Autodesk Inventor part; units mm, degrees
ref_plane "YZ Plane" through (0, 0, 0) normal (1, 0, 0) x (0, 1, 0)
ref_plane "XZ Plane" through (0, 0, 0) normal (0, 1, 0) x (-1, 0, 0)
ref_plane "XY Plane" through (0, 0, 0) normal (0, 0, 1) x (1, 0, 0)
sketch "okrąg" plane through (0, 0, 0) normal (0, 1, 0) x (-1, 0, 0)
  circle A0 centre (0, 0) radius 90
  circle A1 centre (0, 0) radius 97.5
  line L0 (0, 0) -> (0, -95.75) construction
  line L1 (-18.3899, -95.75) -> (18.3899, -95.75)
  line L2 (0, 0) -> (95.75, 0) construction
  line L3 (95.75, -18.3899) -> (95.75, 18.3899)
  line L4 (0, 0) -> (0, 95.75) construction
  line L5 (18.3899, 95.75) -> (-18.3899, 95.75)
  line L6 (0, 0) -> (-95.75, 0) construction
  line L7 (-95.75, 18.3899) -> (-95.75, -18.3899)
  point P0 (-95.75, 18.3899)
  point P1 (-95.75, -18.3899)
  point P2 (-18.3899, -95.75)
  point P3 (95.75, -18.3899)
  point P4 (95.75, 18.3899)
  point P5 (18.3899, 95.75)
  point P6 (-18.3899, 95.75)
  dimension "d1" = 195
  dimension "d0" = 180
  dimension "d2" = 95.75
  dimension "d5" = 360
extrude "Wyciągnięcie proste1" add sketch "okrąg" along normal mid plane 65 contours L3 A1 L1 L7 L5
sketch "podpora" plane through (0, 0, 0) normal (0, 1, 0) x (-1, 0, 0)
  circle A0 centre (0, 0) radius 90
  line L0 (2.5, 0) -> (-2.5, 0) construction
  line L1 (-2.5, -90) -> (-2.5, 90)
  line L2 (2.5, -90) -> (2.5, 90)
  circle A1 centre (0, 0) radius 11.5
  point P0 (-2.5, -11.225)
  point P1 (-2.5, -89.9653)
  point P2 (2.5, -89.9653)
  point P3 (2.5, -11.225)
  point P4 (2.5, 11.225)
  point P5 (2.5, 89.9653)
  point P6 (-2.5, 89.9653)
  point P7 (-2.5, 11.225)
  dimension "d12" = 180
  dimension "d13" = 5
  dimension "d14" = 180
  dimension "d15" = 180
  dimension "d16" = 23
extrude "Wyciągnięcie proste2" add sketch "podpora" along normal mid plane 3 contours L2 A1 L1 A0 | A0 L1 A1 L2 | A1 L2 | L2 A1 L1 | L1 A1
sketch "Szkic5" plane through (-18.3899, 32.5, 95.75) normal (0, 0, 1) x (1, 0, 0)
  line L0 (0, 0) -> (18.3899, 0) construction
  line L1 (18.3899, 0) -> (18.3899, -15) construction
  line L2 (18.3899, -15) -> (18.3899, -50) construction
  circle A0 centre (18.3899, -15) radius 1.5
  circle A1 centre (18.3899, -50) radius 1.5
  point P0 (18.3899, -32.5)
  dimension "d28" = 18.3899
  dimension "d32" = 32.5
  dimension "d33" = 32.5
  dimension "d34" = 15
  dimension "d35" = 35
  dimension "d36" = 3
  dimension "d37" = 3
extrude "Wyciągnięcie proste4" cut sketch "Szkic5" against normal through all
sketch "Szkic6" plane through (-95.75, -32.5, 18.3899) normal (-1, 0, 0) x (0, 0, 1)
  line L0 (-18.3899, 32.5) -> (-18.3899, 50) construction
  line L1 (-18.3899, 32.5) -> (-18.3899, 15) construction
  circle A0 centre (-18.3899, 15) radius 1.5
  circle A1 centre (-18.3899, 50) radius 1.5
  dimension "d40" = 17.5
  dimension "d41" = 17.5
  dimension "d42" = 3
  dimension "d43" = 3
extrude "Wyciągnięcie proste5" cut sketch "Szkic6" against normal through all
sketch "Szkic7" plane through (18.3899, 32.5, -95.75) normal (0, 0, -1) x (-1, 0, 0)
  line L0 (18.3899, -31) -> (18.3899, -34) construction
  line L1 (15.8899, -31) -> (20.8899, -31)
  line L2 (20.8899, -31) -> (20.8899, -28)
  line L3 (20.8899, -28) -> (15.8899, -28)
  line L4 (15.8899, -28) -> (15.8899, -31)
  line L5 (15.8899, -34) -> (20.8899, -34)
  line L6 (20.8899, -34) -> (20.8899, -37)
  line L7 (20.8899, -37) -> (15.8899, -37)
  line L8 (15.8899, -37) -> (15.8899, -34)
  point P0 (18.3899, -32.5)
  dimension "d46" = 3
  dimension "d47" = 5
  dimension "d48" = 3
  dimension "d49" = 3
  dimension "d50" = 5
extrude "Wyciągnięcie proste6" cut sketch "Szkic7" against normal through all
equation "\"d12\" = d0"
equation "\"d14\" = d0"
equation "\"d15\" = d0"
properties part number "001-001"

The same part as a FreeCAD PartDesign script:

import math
import FreeCAD as App
import Part
import Sketcher
Q = App.Units.Quantity

doc = App.newDocument("Part")
params = doc.addObject("Spreadsheet::Sheet", "Params")
for row, (alias, value) in enumerate([
    ("sketch1_diameter", "180 mm"),
    ("sketch1_radius", "97.5 mm"),
    ("pad1_length", "65 mm"),
    ("sketch2_radius", "90 mm"),
    ("sketch2_radius2", "11.5 mm"),
    ("pad2_length", "3 mm"),
    ("sketch3_diameter", "3 mm"),
    ("sketch4_diameter", "3 mm"),
    ("sketch5_width", "5 mm"),
    ("sketch5_height", "3 mm"),
], start=1):
    params.set(f"A{row}", alias)
    params.set(f"B{row}", "=" + value)
    params.setAlias(f"B{row}", alias)

body = doc.addObject("PartDesign::Body", "Body")

sketch1 = body.newObject("Sketcher::SketchObject", "Sketch")
sketch1.AttachmentSupport = (doc.getObject("XZ_Plane"), [""])
sketch1.MapMode = "FlatFace"
sketch1.addGeometry([
    Part.LineSegment(App.Vector(-95.75, -18.3899, 0), App.Vector(-95.75, 18.3899, 0)),
    Part.ArcOfCircle(Part.Circle(App.Vector(0, 0, 0), App.Vector(0, 0, 1), 97.5), math.radians(100.87193), math.radians(169.12807)),
    Part.LineSegment(App.Vector(-18.3899, 95.75, 0), App.Vector(18.3899, 95.75, 0)),
    Part.ArcOfCircle(Part.Circle(App.Vector(0, 0, 0), App.Vector(0, 0, 1), 97.5), math.radians(10.87193), math.radians(79.12807)),
    Part.LineSegment(App.Vector(95.75, 18.3899, 0), App.Vector(95.75, -18.3899, 0)),
    Part.ArcOfCircle(Part.Circle(App.Vector(0, 0, 0), App.Vector(0, 0, 1), 97.5), math.radians(-79.12807), math.radians(-10.87193)),
    Part.LineSegment(App.Vector(18.3899, -95.75, 0), App.Vector(-18.3899, -95.75, 0)),
    Part.ArcOfCircle(Part.Circle(App.Vector(0, 0, 0), App.Vector(0, 0, 1), 97.5), math.radians(-169.12807), math.radians(-100.87193)),
    Part.Circle(App.Vector(0, 0, 0), App.Vector(0, 0, 1), 90),
], False)
sketch1.addConstraint([
    Sketcher.Constraint("Coincident", 0, 2, 1, 2),
    Sketcher.Constraint("Coincident", 1, 1, 2, 1),
    Sketcher.Constraint("Coincident", 2, 2, 3, 2),
    Sketcher.Constraint("Coincident", 3, 1, 4, 1),
    Sketcher.Constraint("Coincident", 4, 2, 5, 2),
    Sketcher.Constraint("Coincident", 5, 1, 6, 1),
    Sketcher.Constraint("Coincident", 6, 2, 7, 2),
    Sketcher.Constraint("Coincident", 7, 1, 0, 1),
    Sketcher.Constraint("Vertical", 0),
    Sketcher.Constraint("Horizontal", 2),
    Sketcher.Constraint("Vertical", 4),
    Sketcher.Constraint("Horizontal", 6),
    Sketcher.Constraint("Coincident", 1, 3, -1, 1),
    Sketcher.Constraint("Coincident", 3, 3, -1, 1),
    Sketcher.Constraint("Coincident", 5, 3, -1, 1),
    Sketcher.Constraint("Coincident", 7, 3, -1, 1),
    Sketcher.Constraint("Coincident", 8, 3, -1, 1),
    Sketcher.Constraint("Equal", 1, 3),
    Sketcher.Constraint("Equal", 3, 5),
    Sketcher.Constraint("Equal", 5, 7),
    Sketcher.Constraint("Horizontal", 0, 2, 3, 1),
    Sketcher.Constraint("Vertical", 2, 2, 5, 1),
    Sketcher.Constraint("Equal", 6, 0),
    Sketcher.Constraint("Diameter", 8, Q("180 mm")),
    Sketcher.Constraint("Radius", 1, Q("97.5 mm")),
    Sketcher.Constraint("DistanceX", 0, 2, -1, 1, Q("95.75 mm")),
])
sketch1.setExpression("Constraints[23]", "Params.sketch1_diameter")
sketch1.setExpression("Constraints[24]", "Params.sketch1_radius")
pad1 = body.newObject("PartDesign::Pad", "Pad")
pad1.Profile = sketch1
pad1.setExpression("Length", "Params.pad1_length")
pad1.Midplane = True

sketch2 = body.newObject("Sketcher::SketchObject", "Sketch001")
sketch2.AttachmentSupport = (doc.getObject("XZ_Plane"), [""])
sketch2.MapMode = "FlatFace"
sketch2.addGeometry([
    Part.LineSegment(App.Vector(-2.5, 11.224972, 0), App.Vector(-2.5, 89.965271, 0)),
    Part.ArcOfCircle(Part.Circle(App.Vector(0, 0, 0), App.Vector(0, 0, 1), 90), math.radians(88.408246), math.radians(91.591754)),
    Part.LineSegment(App.Vector(2.5, 89.965271, 0), App.Vector(2.5, 11.224972, 0)),
    Part.ArcOfCircle(Part.Circle(App.Vector(0, 0, 0), App.Vector(0, 0, 1), 11.5), math.radians(-77.444142), math.radians(77.444142)),
    Part.LineSegment(App.Vector(2.5, -11.224972, 0), App.Vector(2.5, -89.965271, 0)),
    Part.ArcOfCircle(Part.Circle(App.Vector(0, 0, 0), App.Vector(0, 0, 1), 90), math.radians(-91.591754), math.radians(-88.408246)),
    Part.LineSegment(App.Vector(-2.5, -89.965271, 0), App.Vector(-2.5, -11.224972, 0)),
    Part.ArcOfCircle(Part.Circle(App.Vector(0, 0, 0), App.Vector(0, 0, 1), 11.5), math.radians(102.555858), math.radians(257.444142)),
], False)
sketch2.addConstraint([
    Sketcher.Constraint("Coincident", 0, 2, 1, 2),
    Sketcher.Constraint("Coincident", 1, 1, 2, 1),
    Sketcher.Constraint("Coincident", 2, 2, 3, 2),
    Sketcher.Constraint("Coincident", 3, 1, 4, 1),
    Sketcher.Constraint("Coincident", 4, 2, 5, 2),
    Sketcher.Constraint("Coincident", 5, 1, 6, 1),
    Sketcher.Constraint("Coincident", 6, 2, 7, 2),
    Sketcher.Constraint("Coincident", 7, 1, 0, 1),
    Sketcher.Constraint("Vertical", 0),
    Sketcher.Constraint("Vertical", 2),
    Sketcher.Constraint("Vertical", 4),
    Sketcher.Constraint("Vertical", 6),
    Sketcher.Constraint("Coincident", 1, 3, -1, 1),
    Sketcher.Constraint("Coincident", 3, 3, -1, 1),
    Sketcher.Constraint("Coincident", 5, 3, -1, 1),
    Sketcher.Constraint("Coincident", 7, 3, -1, 1),
    Sketcher.Constraint("Equal", 1, 5),
    Sketcher.Constraint("Equal", 3, 7),
    Sketcher.Constraint("Horizontal", 0, 2, 1, 1),
    Sketcher.Constraint("Horizontal", 4, 2, 5, 1),
    Sketcher.Constraint("Vertical", 2, 2, 3, 1),
    Sketcher.Constraint("Radius", 1, Q("90 mm")),
    Sketcher.Constraint("Radius", 3, Q("11.5 mm")),
    Sketcher.Constraint("DistanceX", 0, 2, 1, 1, Q("5 mm")),
])
sketch2.setExpression("Constraints[21]", "Params.sketch2_radius")
sketch2.setExpression("Constraints[22]", "Params.sketch2_radius2")
pad2 = body.newObject("PartDesign::Pad", "Pad001")
pad2.Profile = sketch2
pad2.setExpression("Length", "Params.pad2_length")
pad2.Midplane = True

sketch3 = body.newObject("Sketcher::SketchObject", "Sketch002")
sketch3.AttachmentSupport = (doc.getObject("XY_Plane"), [""])
sketch3.MapMode = "FlatFace"
sketch3.AttachmentOffset = App.Placement(App.Vector(0, 0, 95.75), App.Rotation())
sketch3.addGeometry([
    Part.Circle(App.Vector(0, 17.5, 0), App.Vector(0, 0, 1), 1.5),
    Part.Circle(App.Vector(0, -17.5, 0), App.Vector(0, 0, 1), 1.5),
], False)
sketch3.addConstraint([
    Sketcher.Constraint("Equal", 0, 1),
    Sketcher.Constraint("Symmetric", 0, 3, 1, 3, -1, 1),
    Sketcher.Constraint("PointOnObject", 0, 3, -2),
    Sketcher.Constraint("Diameter", 0, Q("3 mm")),
    Sketcher.Constraint("DistanceY", 1, 3, 0, 3, Q("35 mm")),
])
sketch3.setExpression("Constraints[3]", "Params.sketch3_diameter")
pocket1 = body.newObject("PartDesign::Pocket", "Pocket")
pocket1.Profile = sketch3
pocket1.Type = "ThroughAll"

sketch4 = body.newObject("Sketcher::SketchObject", "Sketch003")
sketch4.AttachmentSupport = (doc.getObject("YZ_Plane"), [""])
sketch4.MapMode = "FlatFace"
sketch4.AttachmentOffset = App.Placement(App.Vector(0, 0, -95.75), App.Rotation())
sketch4.addGeometry([
    Part.Circle(App.Vector(-17.5, 0, 0), App.Vector(0, 0, 1), 1.5),
    Part.Circle(App.Vector(17.5, 0, 0), App.Vector(0, 0, 1), 1.5),
], False)
sketch4.addConstraint([
    Sketcher.Constraint("Equal", 0, 1),
    Sketcher.Constraint("Symmetric", 0, 3, 1, 3, -1, 1),
    Sketcher.Constraint("PointOnObject", 0, 3, -1),
    Sketcher.Constraint("Diameter", 0, Q("3 mm")),
    Sketcher.Constraint("DistanceX", 0, 3, -1, 1, Q("17.5 mm")),
])
sketch4.setExpression("Constraints[3]", "Params.sketch4_diameter")
pocket2 = body.newObject("PartDesign::Pocket", "Pocket001")
pocket2.Profile = sketch4
pocket2.Type = "ThroughAll"
pocket2.Reversed = True

sketch5 = body.newObject("Sketcher::SketchObject", "Sketch004")
sketch5.AttachmentSupport = (doc.getObject("XY_Plane"), [""])
sketch5.MapMode = "FlatFace"
sketch5.AttachmentOffset = App.Placement(App.Vector(0, 0, -95.75), App.Rotation())
sketch5.addGeometry([
    Part.LineSegment(App.Vector(2.5, 4.5, 0), App.Vector(2.5, 1.5, 0)),
    Part.LineSegment(App.Vector(2.5, 1.5, 0), App.Vector(-2.5, 1.5, 0)),
    Part.LineSegment(App.Vector(-2.5, 1.5, 0), App.Vector(-2.5, 4.5, 0)),
    Part.LineSegment(App.Vector(-2.5, 4.5, 0), App.Vector(2.5, 4.5, 0)),
    Part.LineSegment(App.Vector(-2.5, -1.5, 0), App.Vector(2.5, -1.5, 0)),
    Part.LineSegment(App.Vector(2.5, -1.5, 0), App.Vector(2.5, -4.5, 0)),
    Part.LineSegment(App.Vector(2.5, -4.5, 0), App.Vector(-2.5, -4.5, 0)),
    Part.LineSegment(App.Vector(-2.5, -4.5, 0), App.Vector(-2.5, -1.5, 0)),
], False)
sketch5.addConstraint([
    Sketcher.Constraint("Coincident", 0, 2, 1, 1),
    Sketcher.Constraint("Coincident", 1, 2, 2, 1),
    Sketcher.Constraint("Coincident", 2, 2, 3, 1),
    Sketcher.Constraint("Coincident", 3, 2, 0, 1),
    Sketcher.Constraint("Coincident", 4, 2, 5, 1),
    Sketcher.Constraint("Coincident", 5, 2, 6, 1),
    Sketcher.Constraint("Coincident", 6, 2, 7, 1),
    Sketcher.Constraint("Coincident", 7, 2, 4, 1),
    Sketcher.Constraint("Vertical", 0),
    Sketcher.Constraint("Horizontal", 1),
    Sketcher.Constraint("Vertical", 2),
    Sketcher.Constraint("Horizontal", 3),
    Sketcher.Constraint("Horizontal", 4),
    Sketcher.Constraint("Vertical", 5),
    Sketcher.Constraint("Horizontal", 6),
    Sketcher.Constraint("Vertical", 7),
    Sketcher.Constraint("Symmetric", 1, 2, 4, 2, -1, 1),
    Sketcher.Constraint("Symmetric", 3, 2, 6, 2, -1, 1),
    Sketcher.Constraint("Vertical", 3, 2, 4, 2),
    Sketcher.Constraint("DistanceX", 1, 2, 1, 1, Q("5 mm")),
    Sketcher.Constraint("DistanceY", 0, 2, 0, 1, Q("3 mm")),
    Sketcher.Constraint("DistanceY", 4, 2, 0, 2, Q("3 mm")),
])
sketch5.setExpression("Constraints[19]", "Params.sketch5_width")
sketch5.setExpression("Constraints[20]", "Params.sketch5_height")
pocket3 = body.newObject("PartDesign::Pocket", "Pocket002")
pocket3.Profile = sketch5
pocket3.Type = "ThroughAll"
pocket3.Reversed = True

doc.recompute()
